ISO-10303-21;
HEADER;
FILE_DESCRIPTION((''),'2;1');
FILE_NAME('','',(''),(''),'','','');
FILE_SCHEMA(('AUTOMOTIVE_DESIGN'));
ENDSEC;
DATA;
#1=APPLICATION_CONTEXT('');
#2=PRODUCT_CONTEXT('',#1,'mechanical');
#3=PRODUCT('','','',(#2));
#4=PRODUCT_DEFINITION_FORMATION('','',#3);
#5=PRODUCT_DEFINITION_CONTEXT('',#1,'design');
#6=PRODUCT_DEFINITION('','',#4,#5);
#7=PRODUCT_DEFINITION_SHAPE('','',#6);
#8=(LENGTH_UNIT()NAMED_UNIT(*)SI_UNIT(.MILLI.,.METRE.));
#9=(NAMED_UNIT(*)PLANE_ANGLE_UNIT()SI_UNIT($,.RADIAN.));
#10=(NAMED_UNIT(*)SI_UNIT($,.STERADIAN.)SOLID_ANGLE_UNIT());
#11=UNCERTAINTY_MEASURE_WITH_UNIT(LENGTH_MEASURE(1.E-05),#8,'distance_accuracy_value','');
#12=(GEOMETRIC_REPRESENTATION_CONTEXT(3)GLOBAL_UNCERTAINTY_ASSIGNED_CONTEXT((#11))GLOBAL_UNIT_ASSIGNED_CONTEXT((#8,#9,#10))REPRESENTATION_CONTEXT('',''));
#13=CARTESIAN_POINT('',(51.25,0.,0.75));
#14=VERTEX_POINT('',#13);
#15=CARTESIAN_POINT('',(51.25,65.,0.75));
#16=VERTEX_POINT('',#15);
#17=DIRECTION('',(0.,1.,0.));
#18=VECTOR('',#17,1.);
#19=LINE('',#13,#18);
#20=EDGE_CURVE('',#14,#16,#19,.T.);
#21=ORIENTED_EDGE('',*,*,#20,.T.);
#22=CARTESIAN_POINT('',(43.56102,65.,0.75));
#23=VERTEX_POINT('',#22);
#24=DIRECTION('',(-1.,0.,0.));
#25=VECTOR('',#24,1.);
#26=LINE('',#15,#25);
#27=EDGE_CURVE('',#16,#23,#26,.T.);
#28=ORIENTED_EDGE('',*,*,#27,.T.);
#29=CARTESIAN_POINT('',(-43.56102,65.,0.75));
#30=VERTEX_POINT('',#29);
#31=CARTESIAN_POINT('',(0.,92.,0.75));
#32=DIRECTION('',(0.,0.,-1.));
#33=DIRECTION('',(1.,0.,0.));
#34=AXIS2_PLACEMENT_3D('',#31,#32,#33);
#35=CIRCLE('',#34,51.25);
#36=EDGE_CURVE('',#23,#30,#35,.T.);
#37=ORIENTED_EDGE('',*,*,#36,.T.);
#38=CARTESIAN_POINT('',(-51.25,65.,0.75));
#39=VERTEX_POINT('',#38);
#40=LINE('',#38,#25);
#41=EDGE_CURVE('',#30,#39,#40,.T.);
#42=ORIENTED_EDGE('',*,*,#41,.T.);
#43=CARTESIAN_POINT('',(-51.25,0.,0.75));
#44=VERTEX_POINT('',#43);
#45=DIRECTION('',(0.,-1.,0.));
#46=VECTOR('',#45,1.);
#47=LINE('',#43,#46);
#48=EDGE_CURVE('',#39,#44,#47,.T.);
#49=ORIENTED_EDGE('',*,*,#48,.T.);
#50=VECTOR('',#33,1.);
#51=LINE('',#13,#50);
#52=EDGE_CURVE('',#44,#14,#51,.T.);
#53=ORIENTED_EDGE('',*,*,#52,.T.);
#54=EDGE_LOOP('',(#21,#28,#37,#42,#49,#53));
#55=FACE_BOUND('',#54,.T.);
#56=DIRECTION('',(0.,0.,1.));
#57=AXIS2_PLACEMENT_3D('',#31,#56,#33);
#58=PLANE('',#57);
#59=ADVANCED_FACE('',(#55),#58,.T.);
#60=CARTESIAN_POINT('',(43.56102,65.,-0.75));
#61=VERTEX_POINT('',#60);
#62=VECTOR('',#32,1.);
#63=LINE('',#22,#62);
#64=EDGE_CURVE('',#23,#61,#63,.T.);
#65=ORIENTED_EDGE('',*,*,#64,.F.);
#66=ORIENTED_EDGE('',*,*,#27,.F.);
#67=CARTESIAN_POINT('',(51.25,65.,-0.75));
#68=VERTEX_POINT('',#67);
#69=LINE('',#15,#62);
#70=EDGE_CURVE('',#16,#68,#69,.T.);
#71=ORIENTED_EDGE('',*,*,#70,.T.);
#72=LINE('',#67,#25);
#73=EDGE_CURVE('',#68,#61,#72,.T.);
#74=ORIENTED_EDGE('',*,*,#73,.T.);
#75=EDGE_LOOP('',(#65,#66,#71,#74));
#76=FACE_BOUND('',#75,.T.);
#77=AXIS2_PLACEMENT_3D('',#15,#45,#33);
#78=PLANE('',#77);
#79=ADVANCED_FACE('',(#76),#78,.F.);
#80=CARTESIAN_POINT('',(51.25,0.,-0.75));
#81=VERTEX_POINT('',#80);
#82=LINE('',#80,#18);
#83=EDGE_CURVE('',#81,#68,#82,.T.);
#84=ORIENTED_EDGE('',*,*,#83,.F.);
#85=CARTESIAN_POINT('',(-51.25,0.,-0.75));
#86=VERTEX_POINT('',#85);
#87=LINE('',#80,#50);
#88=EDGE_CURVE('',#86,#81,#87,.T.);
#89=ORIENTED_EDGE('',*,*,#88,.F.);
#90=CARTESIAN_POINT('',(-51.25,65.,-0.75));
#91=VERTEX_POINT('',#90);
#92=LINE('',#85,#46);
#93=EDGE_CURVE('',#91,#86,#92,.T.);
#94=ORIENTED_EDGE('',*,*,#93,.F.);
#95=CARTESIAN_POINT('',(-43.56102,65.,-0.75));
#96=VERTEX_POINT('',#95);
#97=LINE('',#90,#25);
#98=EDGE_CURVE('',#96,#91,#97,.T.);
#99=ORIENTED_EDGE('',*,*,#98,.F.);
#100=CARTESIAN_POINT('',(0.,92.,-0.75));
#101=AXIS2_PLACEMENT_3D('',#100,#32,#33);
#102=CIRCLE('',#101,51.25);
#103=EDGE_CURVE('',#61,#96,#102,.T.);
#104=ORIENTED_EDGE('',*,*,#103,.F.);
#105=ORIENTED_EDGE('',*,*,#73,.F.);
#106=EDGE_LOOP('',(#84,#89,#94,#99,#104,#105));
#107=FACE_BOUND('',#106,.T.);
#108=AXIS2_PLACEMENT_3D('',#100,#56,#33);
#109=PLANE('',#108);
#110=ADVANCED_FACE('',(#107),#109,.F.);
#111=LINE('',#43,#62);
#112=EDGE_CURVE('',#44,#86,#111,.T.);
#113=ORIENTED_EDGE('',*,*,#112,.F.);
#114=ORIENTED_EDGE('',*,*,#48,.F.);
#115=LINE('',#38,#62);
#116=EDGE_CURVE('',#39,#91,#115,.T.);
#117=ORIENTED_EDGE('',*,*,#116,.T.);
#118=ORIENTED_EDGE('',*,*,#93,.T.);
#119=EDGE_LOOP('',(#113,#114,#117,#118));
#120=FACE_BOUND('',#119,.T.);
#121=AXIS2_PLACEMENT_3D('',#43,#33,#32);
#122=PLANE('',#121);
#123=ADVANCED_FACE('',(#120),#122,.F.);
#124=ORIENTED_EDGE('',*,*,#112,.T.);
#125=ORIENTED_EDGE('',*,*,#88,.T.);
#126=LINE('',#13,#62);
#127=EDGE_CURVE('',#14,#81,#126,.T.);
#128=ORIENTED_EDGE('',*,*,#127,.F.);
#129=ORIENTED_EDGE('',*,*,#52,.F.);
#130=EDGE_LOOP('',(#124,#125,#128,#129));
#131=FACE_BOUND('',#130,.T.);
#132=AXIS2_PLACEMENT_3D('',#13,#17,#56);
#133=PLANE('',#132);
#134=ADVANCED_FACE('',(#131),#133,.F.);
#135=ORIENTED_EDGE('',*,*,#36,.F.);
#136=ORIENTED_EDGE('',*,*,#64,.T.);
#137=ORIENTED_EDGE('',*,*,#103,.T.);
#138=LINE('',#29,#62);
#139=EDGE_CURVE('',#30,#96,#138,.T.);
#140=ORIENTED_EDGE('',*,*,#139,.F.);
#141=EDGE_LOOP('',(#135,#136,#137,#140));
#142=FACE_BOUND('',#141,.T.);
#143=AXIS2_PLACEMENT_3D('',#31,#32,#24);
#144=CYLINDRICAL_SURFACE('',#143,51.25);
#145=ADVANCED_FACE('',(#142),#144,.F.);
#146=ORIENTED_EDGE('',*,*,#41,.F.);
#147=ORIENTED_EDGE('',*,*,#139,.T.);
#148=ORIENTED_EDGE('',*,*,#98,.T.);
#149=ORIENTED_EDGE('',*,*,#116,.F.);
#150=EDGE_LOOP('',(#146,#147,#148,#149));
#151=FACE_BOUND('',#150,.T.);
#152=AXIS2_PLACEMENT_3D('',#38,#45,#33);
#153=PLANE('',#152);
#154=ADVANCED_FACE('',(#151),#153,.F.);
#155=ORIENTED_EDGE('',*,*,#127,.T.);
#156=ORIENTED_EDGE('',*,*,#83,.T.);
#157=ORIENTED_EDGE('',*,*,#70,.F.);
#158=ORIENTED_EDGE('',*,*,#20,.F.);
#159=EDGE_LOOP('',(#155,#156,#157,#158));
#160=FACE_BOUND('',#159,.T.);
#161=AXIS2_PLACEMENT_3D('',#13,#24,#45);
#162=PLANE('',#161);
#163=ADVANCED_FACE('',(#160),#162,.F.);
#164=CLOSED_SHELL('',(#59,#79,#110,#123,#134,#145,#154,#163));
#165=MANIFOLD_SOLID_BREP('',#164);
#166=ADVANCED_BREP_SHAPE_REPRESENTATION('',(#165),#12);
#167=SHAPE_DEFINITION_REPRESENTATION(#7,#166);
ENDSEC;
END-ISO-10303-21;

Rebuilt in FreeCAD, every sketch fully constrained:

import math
import FreeCAD as App
import Part
import Sketcher

V = App.Vector

doc = App.newDocument("Part")
body = doc.addObject("PartDesign::Body", "Body")

# Sketch on XY plane
sketch1 = body.newObject("Sketcher::SketchObject", "Sketch")
sketch1.AttachmentSupport = (doc.getObject("XY_Plane"), [""])
sketch1.MapMode = "FlatFace"
sketch1.addGeometry([
    Part.LineSegment(V(-51, 0, 0), V(51, 0, 0)),  # 0
    Part.LineSegment(V(51, 0, 0), V(51, 65, 0)),  # 1
    Part.LineSegment(V(51, 65, 0), V(44, 65, 0)),  # 2
    Part.ArcOfCircle(Part.Circle(V(0, 92, 0), V(0, 0, 1), 51), math.radians(-148), math.radians(-32)),  # 3
    Part.LineSegment(V(-44, 65, 0), V(-51, 65, 0)),  # 4
    Part.LineSegment(V(-51, 65, 0), V(-51, 0, 0)),  # 5
], False)
sketch1.addConstraint([
    Sketcher.Constraint("Coincident", 0, 2, 1, 1),
    Sketcher.Constraint("Coincident", 1, 2, 2, 1),
    Sketcher.Constraint("Coincident", 2, 2, 3, 2),
    Sketcher.Constraint("Coincident", 3, 1, 4, 1),
    Sketcher.Constraint("Coincident", 4, 2, 5, 1),
    Sketcher.Constraint("Coincident", 5, 2, 0, 1),
    Sketcher.Constraint("Horizontal", 0),
    Sketcher.Constraint("Vertical", 1),
    Sketcher.Constraint("Horizontal", 2),
    Sketcher.Constraint("Horizontal", 4),
    Sketcher.Constraint("Vertical", 5),
    Sketcher.Constraint("Symmetric", 0, 2, 5, 2, -1, 1),
    Sketcher.Constraint("Symmetric", 2, 2, 3, 1, -2),
    Sketcher.Constraint("DistanceY", 1, 1, 1, 2, 65.0),
    Sketcher.Constraint("Radius", 3, 51.25),
    Sketcher.Constraint("DistanceX", 0, 1, 0, 2, 102.5),
    Sketcher.Constraint("DistanceY", -1, 1, 3, 3, 92.0),
])
pad1 = body.newObject("PartDesign::Pad", "Pad")
pad1.Profile = sketch1
pad1.Length = 1.5
pad1.Midplane = True

doc.recompute()
